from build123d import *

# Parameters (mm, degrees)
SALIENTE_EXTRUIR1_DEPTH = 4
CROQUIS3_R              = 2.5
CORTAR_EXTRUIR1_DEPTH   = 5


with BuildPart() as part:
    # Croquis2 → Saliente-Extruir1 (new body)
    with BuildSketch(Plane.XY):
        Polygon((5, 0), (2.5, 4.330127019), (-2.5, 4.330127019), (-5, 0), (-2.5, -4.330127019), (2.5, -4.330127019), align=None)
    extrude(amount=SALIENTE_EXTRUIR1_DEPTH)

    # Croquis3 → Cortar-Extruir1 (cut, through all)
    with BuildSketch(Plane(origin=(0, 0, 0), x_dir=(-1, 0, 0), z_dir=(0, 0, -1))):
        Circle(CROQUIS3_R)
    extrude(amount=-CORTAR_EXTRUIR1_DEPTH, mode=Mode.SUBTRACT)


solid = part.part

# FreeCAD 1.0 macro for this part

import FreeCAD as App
import Part
import Sketcher

V = App.Vector
Q = App.Units.Quantity

doc = App.newDocument("Part")
body = doc.addObject("PartDesign::Body", "Body")

sketch1 = body.newObject("Sketcher::SketchObject", "Sketch")
sketch1.AttachmentSupport = (doc.getObject("XY_Plane"), [""])
sketch1.MapMode = "FlatFace"
sketch1.addGeometry(Part.LineSegment(V(5, 0, 0), V(2, 4, 0)), False)
sketch1.addGeometry(Part.LineSegment(V(2, 4, 0), V(-2, 4, 0)), False)
sketch1.addGeometry(Part.LineSegment(V(-2, 4, 0), V(-5, 0, 0)), False)
sketch1.addGeometry(Part.LineSegment(V(-5, 0, 0), V(-2, -4, 0)), False)
sketch1.addGeometry(Part.LineSegment(V(-2, -4, 0), V(2, -4, 0)), False)
sketch1.addGeometry(Part.LineSegment(V(2, -4, 0), V(5, 0, 0)), False)
sketch1.addConstraint(Sketcher.Constraint("Coincident", 0, 2, 1, 1))
sketch1.addConstraint(Sketcher.Constraint("Coincident", 1, 2, 2, 1))
sketch1.addConstraint(Sketcher.Constraint("Coincident", 2, 2, 3, 1))
sketch1.addConstraint(Sketcher.Constraint("Coincident", 3, 2, 4, 1))
sketch1.addConstraint(Sketcher.Constraint("Coincident", 4, 2, 5, 1))
sketch1.addConstraint(Sketcher.Constraint("Coincident", 5, 2, 0, 1))
sketch1.addConstraint(Sketcher.Constraint("Horizontal", 1))
sketch1.addConstraint(Sketcher.Constraint("Horizontal", 4))
sketch1.addConstraint(Sketcher.Constraint("Symmetric", 0, 2, 3, 2, -1, 1))
sketch1.addConstraint(Sketcher.Constraint("Symmetric", 2, 2, 5, 2, -1, 1))
sketch1.addConstraint(Sketcher.Constraint("PointOnObject", 2, 2, -1))
sketch1.addConstraint(Sketcher.Constraint("Parallel", 2, 5))
sketch1.addConstraint(Sketcher.Constraint("Vertical", 1, 2, 3, 2))
sketch1.addConstraint(Sketcher.Constraint("DistanceX", 1, 2, 1, 1, 5.0))
sketch1.addConstraint(Sketcher.Constraint("Angle", 0, Q("120 deg")))
sketch1.addConstraint(Sketcher.Constraint("Distance", 0, 5.0))
pad1 = body.newObject("PartDesign::Pad", "Pad")
pad1.Profile = sketch1
pad1.Length = 4

sketch2 = body.newObject("Sketcher::SketchObject", "Sketch001")
sketch2.AttachmentSupport = (doc.getObject("XY_Plane"), [""])
sketch2.MapMode = "FlatFace"
sketch2.addGeometry(Part.Circle(V(0, 0, 0), V(0, 0, 1), 2.5), False)
sketch2.addConstraint(Sketcher.Constraint("Coincident", 0, 3, -1, 1))
sketch2.addConstraint(Sketcher.Constraint("Diameter", 0, 5.0))
pocket1 = body.newObject("PartDesign::Pocket", "Pocket")
pocket1.Profile = sketch2
pocket1.Type = "ThroughAll"
pocket1.Reversed = True

doc.recompute()
